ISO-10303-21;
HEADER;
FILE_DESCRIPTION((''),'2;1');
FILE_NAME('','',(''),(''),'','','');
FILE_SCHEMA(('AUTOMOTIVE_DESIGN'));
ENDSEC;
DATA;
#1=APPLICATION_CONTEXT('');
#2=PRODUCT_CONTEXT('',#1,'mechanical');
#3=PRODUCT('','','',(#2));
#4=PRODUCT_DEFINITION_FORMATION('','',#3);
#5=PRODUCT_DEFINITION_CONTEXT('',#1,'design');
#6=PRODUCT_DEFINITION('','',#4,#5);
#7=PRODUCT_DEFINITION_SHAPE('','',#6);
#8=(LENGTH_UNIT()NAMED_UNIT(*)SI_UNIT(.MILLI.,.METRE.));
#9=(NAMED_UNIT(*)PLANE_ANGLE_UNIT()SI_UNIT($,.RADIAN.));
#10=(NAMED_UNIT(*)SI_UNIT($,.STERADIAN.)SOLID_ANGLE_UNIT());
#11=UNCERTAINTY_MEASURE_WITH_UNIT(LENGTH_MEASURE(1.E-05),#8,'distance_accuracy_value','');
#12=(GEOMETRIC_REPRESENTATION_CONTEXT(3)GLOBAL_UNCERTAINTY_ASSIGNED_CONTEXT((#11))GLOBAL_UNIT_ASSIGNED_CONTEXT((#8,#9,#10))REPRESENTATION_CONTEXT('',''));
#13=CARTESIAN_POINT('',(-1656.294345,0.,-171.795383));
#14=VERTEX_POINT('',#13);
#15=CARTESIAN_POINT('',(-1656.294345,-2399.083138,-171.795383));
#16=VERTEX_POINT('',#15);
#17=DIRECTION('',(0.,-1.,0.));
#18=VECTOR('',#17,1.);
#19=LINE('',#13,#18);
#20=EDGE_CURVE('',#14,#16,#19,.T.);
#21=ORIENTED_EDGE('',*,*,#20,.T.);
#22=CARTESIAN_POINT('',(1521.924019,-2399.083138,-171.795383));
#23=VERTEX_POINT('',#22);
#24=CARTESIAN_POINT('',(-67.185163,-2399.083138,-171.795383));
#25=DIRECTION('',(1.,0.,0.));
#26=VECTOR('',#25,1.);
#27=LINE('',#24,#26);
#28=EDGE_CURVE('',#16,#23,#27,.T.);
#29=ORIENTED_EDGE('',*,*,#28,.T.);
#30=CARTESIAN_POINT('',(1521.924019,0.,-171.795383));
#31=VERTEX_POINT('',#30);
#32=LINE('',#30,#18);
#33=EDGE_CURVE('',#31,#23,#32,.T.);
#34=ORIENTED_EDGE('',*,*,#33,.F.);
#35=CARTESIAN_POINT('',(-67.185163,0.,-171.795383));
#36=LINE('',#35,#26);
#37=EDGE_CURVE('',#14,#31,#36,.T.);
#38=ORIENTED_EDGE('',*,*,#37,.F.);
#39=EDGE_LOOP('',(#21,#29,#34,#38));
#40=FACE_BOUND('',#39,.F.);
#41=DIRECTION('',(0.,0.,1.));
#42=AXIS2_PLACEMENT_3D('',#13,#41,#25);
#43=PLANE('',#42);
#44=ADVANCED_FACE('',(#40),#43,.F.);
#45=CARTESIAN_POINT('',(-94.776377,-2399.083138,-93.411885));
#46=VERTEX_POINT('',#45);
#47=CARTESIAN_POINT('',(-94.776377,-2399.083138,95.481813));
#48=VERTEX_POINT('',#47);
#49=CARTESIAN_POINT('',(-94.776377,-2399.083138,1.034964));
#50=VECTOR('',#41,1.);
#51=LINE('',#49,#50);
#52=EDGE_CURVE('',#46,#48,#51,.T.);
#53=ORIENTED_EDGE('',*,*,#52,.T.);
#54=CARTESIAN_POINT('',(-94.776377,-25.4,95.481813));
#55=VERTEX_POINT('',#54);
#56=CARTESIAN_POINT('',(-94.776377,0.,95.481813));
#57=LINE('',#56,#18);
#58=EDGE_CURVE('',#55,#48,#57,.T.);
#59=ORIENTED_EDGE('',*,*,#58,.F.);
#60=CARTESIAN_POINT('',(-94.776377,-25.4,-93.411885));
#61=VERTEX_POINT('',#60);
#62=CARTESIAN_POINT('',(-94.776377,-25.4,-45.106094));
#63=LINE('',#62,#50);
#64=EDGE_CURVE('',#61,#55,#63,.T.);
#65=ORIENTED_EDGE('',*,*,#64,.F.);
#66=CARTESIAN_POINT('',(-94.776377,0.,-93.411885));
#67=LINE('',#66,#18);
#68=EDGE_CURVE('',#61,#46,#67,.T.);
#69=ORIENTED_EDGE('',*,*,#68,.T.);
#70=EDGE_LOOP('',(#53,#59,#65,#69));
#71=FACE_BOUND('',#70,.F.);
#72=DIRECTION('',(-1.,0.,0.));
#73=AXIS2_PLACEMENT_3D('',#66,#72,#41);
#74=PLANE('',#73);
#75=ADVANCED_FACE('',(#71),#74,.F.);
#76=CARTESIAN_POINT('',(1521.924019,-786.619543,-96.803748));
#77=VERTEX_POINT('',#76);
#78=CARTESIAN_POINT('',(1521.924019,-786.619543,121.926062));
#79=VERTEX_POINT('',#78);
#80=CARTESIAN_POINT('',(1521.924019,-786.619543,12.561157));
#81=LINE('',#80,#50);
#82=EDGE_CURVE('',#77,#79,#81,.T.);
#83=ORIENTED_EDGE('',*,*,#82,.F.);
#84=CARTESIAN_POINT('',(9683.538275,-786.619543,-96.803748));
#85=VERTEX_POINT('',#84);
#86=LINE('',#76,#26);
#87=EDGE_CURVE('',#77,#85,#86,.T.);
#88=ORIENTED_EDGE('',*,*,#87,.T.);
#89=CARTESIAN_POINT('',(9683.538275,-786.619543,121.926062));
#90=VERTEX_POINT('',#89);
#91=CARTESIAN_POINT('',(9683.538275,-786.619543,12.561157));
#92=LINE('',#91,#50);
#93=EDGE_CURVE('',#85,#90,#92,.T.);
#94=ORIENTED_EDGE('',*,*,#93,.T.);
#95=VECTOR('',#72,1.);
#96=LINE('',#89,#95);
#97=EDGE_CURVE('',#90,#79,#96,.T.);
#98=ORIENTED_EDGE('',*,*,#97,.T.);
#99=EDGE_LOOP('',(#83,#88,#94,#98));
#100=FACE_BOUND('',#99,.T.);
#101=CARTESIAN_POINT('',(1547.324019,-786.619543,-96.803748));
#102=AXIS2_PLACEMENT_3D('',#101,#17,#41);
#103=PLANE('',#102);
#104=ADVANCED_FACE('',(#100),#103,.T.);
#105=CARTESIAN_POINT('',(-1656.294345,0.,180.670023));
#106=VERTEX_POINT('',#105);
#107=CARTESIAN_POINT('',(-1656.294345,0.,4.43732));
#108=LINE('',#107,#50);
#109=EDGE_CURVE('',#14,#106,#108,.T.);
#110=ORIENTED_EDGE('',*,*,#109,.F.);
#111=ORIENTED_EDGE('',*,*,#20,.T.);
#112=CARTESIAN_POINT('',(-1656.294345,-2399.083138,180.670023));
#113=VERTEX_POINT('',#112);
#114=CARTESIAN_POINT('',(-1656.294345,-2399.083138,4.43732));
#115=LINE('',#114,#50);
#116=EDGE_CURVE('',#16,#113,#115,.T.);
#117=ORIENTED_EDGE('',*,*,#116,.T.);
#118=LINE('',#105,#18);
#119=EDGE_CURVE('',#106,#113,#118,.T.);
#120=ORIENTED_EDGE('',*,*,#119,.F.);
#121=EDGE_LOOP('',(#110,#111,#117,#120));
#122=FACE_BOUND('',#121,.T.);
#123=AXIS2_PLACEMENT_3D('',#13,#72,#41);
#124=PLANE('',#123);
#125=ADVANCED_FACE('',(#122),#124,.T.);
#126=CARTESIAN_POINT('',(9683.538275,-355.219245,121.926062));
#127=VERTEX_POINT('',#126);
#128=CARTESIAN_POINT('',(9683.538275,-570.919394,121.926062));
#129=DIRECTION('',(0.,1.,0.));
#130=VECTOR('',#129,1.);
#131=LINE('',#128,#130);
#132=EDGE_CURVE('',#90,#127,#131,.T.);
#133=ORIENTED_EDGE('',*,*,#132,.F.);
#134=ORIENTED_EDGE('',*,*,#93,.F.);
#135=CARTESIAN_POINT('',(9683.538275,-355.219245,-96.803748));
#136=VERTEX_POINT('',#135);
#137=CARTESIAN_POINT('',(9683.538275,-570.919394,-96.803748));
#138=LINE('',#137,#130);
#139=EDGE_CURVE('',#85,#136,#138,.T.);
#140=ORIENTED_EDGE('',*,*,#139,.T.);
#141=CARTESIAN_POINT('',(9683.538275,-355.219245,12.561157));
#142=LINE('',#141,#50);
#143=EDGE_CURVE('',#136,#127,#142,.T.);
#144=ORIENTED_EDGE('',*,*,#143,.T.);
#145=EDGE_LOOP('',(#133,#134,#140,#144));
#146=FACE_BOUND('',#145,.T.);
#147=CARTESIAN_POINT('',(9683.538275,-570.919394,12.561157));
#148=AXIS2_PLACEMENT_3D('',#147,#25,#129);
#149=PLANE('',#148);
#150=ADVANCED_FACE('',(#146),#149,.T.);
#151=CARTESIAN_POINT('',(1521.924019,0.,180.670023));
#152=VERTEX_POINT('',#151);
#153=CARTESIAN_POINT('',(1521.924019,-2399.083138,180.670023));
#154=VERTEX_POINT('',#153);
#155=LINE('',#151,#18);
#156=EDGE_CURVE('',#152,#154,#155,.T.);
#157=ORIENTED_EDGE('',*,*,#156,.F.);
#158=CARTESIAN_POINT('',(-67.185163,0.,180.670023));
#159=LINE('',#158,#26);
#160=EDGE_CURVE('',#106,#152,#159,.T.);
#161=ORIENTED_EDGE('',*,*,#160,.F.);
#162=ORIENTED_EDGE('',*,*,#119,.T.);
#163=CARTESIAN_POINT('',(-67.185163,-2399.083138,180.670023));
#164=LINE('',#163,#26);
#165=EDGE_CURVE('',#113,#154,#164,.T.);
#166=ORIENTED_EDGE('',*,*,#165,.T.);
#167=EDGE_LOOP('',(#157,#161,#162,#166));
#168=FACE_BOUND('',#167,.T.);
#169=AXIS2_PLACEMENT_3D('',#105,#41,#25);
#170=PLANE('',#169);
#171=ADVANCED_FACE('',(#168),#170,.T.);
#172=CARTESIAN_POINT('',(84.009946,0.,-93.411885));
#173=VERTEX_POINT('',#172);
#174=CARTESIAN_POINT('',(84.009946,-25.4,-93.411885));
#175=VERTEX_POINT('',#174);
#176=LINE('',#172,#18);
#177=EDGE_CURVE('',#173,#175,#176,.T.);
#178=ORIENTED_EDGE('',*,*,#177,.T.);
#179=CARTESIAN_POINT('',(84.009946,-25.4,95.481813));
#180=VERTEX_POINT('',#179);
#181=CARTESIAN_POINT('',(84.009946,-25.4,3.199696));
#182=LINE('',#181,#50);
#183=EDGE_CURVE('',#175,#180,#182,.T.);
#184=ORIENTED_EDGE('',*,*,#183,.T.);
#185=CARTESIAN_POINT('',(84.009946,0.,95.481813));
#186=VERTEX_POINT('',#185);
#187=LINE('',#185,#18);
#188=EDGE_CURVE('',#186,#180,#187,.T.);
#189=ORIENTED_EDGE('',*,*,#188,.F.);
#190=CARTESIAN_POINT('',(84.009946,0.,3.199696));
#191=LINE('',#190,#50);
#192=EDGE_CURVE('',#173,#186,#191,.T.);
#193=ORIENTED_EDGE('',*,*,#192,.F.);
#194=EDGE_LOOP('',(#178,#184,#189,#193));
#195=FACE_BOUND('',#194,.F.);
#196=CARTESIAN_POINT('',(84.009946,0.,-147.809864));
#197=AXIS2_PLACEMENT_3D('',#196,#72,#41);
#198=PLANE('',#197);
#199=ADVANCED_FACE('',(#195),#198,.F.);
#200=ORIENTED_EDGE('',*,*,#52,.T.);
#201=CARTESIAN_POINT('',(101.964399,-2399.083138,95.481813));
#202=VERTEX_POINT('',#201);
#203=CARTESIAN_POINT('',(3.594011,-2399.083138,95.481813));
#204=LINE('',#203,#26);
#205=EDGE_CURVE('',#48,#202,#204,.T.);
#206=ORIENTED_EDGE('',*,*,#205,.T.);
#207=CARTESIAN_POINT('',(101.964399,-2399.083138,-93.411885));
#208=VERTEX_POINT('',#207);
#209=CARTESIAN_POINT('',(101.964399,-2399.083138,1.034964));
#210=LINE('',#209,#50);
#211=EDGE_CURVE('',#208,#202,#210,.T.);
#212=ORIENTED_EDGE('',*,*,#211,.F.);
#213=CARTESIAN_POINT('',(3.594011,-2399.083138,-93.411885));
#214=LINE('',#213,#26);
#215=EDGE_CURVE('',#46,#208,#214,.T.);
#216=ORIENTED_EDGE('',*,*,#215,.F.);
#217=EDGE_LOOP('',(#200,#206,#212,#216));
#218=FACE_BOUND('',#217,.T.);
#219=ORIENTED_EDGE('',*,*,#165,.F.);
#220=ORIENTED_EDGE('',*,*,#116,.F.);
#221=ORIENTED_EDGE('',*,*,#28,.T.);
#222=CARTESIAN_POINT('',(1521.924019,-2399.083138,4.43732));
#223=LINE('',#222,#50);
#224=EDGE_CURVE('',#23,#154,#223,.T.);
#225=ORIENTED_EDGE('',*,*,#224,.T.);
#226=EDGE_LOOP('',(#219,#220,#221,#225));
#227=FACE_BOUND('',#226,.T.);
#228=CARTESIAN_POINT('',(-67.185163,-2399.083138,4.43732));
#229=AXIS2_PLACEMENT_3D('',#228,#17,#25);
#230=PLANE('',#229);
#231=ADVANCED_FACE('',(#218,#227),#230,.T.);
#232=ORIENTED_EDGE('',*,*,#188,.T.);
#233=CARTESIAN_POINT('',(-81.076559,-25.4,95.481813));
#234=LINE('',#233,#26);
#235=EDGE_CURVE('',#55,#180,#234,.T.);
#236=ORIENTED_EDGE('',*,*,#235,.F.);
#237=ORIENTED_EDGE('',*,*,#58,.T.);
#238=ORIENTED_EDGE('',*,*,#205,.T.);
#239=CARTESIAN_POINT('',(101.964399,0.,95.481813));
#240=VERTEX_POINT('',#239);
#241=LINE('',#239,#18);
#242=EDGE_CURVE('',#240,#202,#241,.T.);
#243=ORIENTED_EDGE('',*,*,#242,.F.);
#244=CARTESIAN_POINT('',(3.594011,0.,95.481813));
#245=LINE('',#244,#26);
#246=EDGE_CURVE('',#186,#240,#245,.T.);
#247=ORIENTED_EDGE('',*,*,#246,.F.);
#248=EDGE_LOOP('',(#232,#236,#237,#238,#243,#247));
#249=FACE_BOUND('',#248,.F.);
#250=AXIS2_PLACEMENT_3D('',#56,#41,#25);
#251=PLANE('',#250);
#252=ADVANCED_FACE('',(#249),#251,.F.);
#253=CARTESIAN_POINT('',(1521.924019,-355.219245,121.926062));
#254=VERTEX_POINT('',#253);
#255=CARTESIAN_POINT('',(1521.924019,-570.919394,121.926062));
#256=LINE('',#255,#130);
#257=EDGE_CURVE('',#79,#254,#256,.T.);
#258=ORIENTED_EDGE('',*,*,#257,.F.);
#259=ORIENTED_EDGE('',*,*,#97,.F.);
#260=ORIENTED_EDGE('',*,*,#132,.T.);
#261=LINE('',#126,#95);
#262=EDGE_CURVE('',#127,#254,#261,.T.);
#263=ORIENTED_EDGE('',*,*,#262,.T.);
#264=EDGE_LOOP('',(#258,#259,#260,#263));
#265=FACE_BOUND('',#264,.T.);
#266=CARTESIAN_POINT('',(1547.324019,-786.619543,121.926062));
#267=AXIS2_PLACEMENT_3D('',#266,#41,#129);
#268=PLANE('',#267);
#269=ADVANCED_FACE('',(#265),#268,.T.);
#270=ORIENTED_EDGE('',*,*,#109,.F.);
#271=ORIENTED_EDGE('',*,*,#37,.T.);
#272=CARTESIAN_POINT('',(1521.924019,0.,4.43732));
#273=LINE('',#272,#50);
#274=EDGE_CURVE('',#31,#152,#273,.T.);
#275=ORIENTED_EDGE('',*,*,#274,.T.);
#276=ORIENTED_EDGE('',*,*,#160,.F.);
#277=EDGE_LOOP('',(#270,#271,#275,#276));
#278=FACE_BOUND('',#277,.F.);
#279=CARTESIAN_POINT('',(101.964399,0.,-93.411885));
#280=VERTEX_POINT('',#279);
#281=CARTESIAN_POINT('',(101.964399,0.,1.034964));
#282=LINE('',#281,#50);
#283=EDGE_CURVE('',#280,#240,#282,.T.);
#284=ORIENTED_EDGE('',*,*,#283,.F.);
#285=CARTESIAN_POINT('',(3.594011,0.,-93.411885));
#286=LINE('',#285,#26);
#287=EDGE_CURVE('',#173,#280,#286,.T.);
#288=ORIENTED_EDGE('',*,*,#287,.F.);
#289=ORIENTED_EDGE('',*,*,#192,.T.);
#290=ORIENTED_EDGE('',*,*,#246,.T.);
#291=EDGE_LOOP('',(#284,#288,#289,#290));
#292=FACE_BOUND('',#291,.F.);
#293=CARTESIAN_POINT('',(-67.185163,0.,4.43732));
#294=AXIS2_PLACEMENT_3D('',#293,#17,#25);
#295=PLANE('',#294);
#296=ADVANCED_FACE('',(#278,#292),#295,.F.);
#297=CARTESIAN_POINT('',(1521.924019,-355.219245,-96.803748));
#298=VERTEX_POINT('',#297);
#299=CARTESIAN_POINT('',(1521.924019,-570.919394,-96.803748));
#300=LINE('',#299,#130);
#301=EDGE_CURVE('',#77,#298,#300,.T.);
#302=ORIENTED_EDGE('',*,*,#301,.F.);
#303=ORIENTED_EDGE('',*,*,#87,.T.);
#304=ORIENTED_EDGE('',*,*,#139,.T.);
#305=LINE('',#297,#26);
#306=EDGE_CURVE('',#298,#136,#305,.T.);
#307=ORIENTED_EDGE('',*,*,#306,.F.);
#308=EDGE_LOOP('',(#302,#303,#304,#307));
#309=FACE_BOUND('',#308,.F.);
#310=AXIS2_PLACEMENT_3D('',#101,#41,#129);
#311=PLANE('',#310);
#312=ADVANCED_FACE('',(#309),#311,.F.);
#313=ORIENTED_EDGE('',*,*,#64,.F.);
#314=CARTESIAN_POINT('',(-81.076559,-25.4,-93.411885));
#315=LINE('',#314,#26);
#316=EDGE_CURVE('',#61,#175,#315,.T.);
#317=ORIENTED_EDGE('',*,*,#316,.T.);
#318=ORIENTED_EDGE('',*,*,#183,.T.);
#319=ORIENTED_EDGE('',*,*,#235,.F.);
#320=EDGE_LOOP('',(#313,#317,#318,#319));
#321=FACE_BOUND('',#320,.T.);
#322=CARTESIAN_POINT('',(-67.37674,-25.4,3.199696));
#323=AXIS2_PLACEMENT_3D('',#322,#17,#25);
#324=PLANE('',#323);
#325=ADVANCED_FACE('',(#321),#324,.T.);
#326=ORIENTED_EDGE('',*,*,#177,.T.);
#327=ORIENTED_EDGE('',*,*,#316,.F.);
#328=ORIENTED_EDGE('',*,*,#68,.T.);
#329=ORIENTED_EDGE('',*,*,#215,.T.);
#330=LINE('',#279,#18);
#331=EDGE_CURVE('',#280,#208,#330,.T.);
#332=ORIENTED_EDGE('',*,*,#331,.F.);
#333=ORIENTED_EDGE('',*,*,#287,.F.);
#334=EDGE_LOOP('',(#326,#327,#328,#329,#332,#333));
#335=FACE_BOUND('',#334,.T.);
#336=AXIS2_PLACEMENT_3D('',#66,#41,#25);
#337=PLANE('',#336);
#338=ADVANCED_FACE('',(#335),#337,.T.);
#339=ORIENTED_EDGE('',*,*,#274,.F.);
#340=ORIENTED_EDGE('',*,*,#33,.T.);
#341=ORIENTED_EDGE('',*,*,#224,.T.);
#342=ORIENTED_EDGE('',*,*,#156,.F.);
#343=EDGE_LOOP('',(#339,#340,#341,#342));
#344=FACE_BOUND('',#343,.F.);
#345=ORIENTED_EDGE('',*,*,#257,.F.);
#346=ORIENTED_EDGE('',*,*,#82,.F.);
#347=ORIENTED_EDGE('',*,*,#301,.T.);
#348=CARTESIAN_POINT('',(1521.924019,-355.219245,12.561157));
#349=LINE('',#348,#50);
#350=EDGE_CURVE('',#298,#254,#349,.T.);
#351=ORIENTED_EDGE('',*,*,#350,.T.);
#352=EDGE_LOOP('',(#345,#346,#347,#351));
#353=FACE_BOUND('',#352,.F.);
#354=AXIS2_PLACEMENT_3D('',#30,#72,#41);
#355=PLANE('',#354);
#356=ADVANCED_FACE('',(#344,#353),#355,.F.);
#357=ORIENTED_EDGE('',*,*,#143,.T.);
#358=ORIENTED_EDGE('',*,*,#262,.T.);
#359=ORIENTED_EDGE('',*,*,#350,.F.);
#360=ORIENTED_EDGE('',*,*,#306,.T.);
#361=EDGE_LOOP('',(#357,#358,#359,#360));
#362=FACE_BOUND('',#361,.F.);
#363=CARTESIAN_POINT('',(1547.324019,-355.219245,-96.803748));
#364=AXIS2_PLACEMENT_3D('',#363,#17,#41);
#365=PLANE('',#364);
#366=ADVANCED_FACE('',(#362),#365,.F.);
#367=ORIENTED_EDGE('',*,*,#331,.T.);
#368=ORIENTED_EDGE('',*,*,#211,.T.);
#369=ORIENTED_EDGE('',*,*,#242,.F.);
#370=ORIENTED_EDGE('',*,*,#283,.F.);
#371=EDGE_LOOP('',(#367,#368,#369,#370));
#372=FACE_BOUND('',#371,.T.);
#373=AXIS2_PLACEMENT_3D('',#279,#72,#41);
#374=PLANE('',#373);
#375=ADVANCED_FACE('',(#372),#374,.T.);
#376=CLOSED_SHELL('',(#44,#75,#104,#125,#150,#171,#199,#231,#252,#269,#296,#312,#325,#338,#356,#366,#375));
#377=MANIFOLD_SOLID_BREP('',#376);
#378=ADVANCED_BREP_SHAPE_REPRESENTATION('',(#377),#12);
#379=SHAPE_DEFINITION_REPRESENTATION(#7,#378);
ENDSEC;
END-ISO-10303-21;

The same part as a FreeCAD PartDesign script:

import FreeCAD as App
import Part
import Sketcher
Q = App.Units.Quantity


def add_polygon(sketch, points):
    """Adds a closed chain of lines whose ends are joined by coincident constraints."""
    first, n = sketch.GeometryCount, len(points)
    for a, b in zip(points, points[1:] + points[:1]):
        sketch.addGeometry(Part.LineSegment(App.Vector(*a, 0), App.Vector(*b, 0)), False)
    for i in range(n):
        sketch.addConstraint(Sketcher.Constraint("Coincident", first + i, 2, first + (i + 1) % n, 1))

doc = App.newDocument("Part")
params = doc.addObject("Spreadsheet::Sheet", "Params")
for row, (alias, value) in enumerate([
    ("pad1_length", "2399.083138 mm"),
    ("pad2_length", "1 in"),
    ("pad3_length", "1 in"),
    ("pad4_length", "8136.214256 mm"),
], start=1):
    params.set(f"A{row}", alias)
    params.set(f"B{row}", "=" + value)
    params.setAlias(f"B{row}", alias)

body = doc.addObject("PartDesign::Body", "Body")

# Sketch on XZ plane
sketch1 = body.newObject("Sketcher::SketchObject", "Sketch")
sketch1.AttachmentSupport = (doc.getObject("XZ_Plane"), [""])
sketch1.MapMode = "FlatFace"
add_polygon(sketch1, [(-1656.294345, 180.670023), (-1656.294345, -171.795383), (1521.924019, -171.795383), (1521.924019, 180.670023)])  # lines 0-3
add_polygon(sketch1, [(101.964399, -93.411885), (-94.776377, -93.411885), (-94.776377, 95.481813), (101.964399, 95.481813)])  # lines 4-7
sketch1.addConstraint([
    Sketcher.Constraint("Vertical", 0),
    Sketcher.Constraint("Horizontal", 1),
    Sketcher.Constraint("Vertical", 2),
    Sketcher.Constraint("Horizontal", 3),
    Sketcher.Constraint("Horizontal", 4),
    Sketcher.Constraint("Vertical", 5),
    Sketcher.Constraint("Horizontal", 6),
    Sketcher.Constraint("Vertical", 7),
    Sketcher.Constraint("DistanceX", 4, 2, 4, 1, Q("7.7456998 in")),
    Sketcher.Constraint("DistanceY", 5, 1, 5, 2, 188.893698),
    Sketcher.Constraint("DistanceX", -1, 1, 6, 2, 101.964399),
    Sketcher.Constraint("DistanceX", 1, 1, 1, 2, 3178.218365),
    Sketcher.Constraint("DistanceY", 0, 2, 0, 1, 352.465406),
    Sketcher.Constraint("DistanceX", -1, 1, 1, 2, 1521.924019),
    Sketcher.Constraint("DistanceY", 4, 2, 3, 2, 274.081908),
    Sketcher.Constraint("DistanceY", 0, 2, -1, 1, 171.795383),
])
pad1 = body.newObject("PartDesign::Pad", "Pad")
pad1.Profile = sketch1
pad1.setExpression("Length", "Params.pad1_length")

# Sketch on XZ plane
sketch2 = body.newObject("Sketcher::SketchObject", "Sketch001")
sketch2.AttachmentSupport = (doc.getObject("XZ_Plane"), [""])
sketch2.MapMode = "FlatFace"
add_polygon(sketch2, [(-218.763426, 154.209256), (-218.763426, -147.809864), (84.009946, -147.809864), (84.009946, 154.209256)])  # lines 0-3
sketch2.addConstraint([
    Sketcher.Constraint("Vertical", 0),
    Sketcher.Constraint("Horizontal", 1),
    Sketcher.Constraint("Vertical", 2),
    Sketcher.Constraint("Horizontal", 3),
    Sketcher.Constraint("DistanceX", 1, 1, 1, 2, 302.773371),
    Sketcher.Constraint("DistanceY", 0, 2, 0, 1, 302.019119),
    Sketcher.Constraint("DistanceX", 0, 2, -1, 1, 218.763426),
    Sketcher.Constraint("DistanceY", 0, 2, -1, 1, 147.809864),
])
pad2 = body.newObject("PartDesign::Pad", "Pad001")
pad2.Profile = sketch2
pad2.setExpression("Length", "Params.pad2_length")

# Sketch on YZ plane
sketch3 = body.newObject("Sketcher::SketchObject", "Sketch002")
sketch3.AttachmentSupport = (doc.getObject("YZ_Plane"), [""])
sketch3.MapMode = "FlatFace"
sketch3.AttachmentOffset = App.Placement(App.Vector(0, 0, 1521.924019), App.Rotation())
add_polygon(sketch3, [(-786.619543, 121.926062), (-786.619543, -96.803748), (-355.219245, -96.803748), (-355.219245, 121.926062)])  # lines 0-3
sketch3.addConstraint([
    Sketcher.Constraint("Vertical", 0),
    Sketcher.Constraint("Horizontal", 1),
    Sketcher.Constraint("Vertical", 2),
    Sketcher.Constraint("Horizontal", 3),
    Sketcher.Constraint("DistanceX", 1, 1, 1, 2, 431.400299),
    Sketcher.Constraint("DistanceY", 0, 2, 0, 1, 218.729809),
    Sketcher.Constraint("DistanceY", -1, 1, 2, 2, 121.926062),
    Sketcher.Constraint("DistanceX", 0, 2, -1, 1, 786.619543),
])
pad3 = body.newObject("PartDesign::Pad", "Pad002")
pad3.Profile = sketch3
pad3.setExpression("Length", "Params.pad3_length")

# Sketch on YZ plane
sketch4 = body.newObject("Sketcher::SketchObject", "Sketch003")
sketch4.AttachmentSupport = (doc.getObject("YZ_Plane"), [""])
sketch4.MapMode = "FlatFace"
sketch4.AttachmentOffset = App.Placement(App.Vector(0, 0, 1547.324019), App.Rotation())
add_polygon(sketch4, [(-786.619543, 121.926062), (-786.619543, -96.803748), (-355.219245, -96.803748), (-355.219245, 121.926062)])  # lines 0-3
sketch4.addConstraint([
    Sketcher.Constraint("Vertical", 0),
    Sketcher.Constraint("Horizontal", 1),
    Sketcher.Constraint("Vertical", 2),
    Sketcher.Constraint("Horizontal", 3),
    Sketcher.Constraint("DistanceX", 1, 1, 1, 2, 431.400299),
    Sketcher.Constraint("DistanceY", 0, 2, 0, 1, 218.729809),
    Sketcher.Constraint("DistanceY", -1, 1, 2, 2, 121.926062),
    Sketcher.Constraint("DistanceX", 0, 2, -1, 1, 786.619543),
])
pad4 = body.newObject("PartDesign::Pad", "Pad003")
pad4.Profile = sketch4
pad4.setExpression("Length", "Params.pad4_length")

doc.recompute()
